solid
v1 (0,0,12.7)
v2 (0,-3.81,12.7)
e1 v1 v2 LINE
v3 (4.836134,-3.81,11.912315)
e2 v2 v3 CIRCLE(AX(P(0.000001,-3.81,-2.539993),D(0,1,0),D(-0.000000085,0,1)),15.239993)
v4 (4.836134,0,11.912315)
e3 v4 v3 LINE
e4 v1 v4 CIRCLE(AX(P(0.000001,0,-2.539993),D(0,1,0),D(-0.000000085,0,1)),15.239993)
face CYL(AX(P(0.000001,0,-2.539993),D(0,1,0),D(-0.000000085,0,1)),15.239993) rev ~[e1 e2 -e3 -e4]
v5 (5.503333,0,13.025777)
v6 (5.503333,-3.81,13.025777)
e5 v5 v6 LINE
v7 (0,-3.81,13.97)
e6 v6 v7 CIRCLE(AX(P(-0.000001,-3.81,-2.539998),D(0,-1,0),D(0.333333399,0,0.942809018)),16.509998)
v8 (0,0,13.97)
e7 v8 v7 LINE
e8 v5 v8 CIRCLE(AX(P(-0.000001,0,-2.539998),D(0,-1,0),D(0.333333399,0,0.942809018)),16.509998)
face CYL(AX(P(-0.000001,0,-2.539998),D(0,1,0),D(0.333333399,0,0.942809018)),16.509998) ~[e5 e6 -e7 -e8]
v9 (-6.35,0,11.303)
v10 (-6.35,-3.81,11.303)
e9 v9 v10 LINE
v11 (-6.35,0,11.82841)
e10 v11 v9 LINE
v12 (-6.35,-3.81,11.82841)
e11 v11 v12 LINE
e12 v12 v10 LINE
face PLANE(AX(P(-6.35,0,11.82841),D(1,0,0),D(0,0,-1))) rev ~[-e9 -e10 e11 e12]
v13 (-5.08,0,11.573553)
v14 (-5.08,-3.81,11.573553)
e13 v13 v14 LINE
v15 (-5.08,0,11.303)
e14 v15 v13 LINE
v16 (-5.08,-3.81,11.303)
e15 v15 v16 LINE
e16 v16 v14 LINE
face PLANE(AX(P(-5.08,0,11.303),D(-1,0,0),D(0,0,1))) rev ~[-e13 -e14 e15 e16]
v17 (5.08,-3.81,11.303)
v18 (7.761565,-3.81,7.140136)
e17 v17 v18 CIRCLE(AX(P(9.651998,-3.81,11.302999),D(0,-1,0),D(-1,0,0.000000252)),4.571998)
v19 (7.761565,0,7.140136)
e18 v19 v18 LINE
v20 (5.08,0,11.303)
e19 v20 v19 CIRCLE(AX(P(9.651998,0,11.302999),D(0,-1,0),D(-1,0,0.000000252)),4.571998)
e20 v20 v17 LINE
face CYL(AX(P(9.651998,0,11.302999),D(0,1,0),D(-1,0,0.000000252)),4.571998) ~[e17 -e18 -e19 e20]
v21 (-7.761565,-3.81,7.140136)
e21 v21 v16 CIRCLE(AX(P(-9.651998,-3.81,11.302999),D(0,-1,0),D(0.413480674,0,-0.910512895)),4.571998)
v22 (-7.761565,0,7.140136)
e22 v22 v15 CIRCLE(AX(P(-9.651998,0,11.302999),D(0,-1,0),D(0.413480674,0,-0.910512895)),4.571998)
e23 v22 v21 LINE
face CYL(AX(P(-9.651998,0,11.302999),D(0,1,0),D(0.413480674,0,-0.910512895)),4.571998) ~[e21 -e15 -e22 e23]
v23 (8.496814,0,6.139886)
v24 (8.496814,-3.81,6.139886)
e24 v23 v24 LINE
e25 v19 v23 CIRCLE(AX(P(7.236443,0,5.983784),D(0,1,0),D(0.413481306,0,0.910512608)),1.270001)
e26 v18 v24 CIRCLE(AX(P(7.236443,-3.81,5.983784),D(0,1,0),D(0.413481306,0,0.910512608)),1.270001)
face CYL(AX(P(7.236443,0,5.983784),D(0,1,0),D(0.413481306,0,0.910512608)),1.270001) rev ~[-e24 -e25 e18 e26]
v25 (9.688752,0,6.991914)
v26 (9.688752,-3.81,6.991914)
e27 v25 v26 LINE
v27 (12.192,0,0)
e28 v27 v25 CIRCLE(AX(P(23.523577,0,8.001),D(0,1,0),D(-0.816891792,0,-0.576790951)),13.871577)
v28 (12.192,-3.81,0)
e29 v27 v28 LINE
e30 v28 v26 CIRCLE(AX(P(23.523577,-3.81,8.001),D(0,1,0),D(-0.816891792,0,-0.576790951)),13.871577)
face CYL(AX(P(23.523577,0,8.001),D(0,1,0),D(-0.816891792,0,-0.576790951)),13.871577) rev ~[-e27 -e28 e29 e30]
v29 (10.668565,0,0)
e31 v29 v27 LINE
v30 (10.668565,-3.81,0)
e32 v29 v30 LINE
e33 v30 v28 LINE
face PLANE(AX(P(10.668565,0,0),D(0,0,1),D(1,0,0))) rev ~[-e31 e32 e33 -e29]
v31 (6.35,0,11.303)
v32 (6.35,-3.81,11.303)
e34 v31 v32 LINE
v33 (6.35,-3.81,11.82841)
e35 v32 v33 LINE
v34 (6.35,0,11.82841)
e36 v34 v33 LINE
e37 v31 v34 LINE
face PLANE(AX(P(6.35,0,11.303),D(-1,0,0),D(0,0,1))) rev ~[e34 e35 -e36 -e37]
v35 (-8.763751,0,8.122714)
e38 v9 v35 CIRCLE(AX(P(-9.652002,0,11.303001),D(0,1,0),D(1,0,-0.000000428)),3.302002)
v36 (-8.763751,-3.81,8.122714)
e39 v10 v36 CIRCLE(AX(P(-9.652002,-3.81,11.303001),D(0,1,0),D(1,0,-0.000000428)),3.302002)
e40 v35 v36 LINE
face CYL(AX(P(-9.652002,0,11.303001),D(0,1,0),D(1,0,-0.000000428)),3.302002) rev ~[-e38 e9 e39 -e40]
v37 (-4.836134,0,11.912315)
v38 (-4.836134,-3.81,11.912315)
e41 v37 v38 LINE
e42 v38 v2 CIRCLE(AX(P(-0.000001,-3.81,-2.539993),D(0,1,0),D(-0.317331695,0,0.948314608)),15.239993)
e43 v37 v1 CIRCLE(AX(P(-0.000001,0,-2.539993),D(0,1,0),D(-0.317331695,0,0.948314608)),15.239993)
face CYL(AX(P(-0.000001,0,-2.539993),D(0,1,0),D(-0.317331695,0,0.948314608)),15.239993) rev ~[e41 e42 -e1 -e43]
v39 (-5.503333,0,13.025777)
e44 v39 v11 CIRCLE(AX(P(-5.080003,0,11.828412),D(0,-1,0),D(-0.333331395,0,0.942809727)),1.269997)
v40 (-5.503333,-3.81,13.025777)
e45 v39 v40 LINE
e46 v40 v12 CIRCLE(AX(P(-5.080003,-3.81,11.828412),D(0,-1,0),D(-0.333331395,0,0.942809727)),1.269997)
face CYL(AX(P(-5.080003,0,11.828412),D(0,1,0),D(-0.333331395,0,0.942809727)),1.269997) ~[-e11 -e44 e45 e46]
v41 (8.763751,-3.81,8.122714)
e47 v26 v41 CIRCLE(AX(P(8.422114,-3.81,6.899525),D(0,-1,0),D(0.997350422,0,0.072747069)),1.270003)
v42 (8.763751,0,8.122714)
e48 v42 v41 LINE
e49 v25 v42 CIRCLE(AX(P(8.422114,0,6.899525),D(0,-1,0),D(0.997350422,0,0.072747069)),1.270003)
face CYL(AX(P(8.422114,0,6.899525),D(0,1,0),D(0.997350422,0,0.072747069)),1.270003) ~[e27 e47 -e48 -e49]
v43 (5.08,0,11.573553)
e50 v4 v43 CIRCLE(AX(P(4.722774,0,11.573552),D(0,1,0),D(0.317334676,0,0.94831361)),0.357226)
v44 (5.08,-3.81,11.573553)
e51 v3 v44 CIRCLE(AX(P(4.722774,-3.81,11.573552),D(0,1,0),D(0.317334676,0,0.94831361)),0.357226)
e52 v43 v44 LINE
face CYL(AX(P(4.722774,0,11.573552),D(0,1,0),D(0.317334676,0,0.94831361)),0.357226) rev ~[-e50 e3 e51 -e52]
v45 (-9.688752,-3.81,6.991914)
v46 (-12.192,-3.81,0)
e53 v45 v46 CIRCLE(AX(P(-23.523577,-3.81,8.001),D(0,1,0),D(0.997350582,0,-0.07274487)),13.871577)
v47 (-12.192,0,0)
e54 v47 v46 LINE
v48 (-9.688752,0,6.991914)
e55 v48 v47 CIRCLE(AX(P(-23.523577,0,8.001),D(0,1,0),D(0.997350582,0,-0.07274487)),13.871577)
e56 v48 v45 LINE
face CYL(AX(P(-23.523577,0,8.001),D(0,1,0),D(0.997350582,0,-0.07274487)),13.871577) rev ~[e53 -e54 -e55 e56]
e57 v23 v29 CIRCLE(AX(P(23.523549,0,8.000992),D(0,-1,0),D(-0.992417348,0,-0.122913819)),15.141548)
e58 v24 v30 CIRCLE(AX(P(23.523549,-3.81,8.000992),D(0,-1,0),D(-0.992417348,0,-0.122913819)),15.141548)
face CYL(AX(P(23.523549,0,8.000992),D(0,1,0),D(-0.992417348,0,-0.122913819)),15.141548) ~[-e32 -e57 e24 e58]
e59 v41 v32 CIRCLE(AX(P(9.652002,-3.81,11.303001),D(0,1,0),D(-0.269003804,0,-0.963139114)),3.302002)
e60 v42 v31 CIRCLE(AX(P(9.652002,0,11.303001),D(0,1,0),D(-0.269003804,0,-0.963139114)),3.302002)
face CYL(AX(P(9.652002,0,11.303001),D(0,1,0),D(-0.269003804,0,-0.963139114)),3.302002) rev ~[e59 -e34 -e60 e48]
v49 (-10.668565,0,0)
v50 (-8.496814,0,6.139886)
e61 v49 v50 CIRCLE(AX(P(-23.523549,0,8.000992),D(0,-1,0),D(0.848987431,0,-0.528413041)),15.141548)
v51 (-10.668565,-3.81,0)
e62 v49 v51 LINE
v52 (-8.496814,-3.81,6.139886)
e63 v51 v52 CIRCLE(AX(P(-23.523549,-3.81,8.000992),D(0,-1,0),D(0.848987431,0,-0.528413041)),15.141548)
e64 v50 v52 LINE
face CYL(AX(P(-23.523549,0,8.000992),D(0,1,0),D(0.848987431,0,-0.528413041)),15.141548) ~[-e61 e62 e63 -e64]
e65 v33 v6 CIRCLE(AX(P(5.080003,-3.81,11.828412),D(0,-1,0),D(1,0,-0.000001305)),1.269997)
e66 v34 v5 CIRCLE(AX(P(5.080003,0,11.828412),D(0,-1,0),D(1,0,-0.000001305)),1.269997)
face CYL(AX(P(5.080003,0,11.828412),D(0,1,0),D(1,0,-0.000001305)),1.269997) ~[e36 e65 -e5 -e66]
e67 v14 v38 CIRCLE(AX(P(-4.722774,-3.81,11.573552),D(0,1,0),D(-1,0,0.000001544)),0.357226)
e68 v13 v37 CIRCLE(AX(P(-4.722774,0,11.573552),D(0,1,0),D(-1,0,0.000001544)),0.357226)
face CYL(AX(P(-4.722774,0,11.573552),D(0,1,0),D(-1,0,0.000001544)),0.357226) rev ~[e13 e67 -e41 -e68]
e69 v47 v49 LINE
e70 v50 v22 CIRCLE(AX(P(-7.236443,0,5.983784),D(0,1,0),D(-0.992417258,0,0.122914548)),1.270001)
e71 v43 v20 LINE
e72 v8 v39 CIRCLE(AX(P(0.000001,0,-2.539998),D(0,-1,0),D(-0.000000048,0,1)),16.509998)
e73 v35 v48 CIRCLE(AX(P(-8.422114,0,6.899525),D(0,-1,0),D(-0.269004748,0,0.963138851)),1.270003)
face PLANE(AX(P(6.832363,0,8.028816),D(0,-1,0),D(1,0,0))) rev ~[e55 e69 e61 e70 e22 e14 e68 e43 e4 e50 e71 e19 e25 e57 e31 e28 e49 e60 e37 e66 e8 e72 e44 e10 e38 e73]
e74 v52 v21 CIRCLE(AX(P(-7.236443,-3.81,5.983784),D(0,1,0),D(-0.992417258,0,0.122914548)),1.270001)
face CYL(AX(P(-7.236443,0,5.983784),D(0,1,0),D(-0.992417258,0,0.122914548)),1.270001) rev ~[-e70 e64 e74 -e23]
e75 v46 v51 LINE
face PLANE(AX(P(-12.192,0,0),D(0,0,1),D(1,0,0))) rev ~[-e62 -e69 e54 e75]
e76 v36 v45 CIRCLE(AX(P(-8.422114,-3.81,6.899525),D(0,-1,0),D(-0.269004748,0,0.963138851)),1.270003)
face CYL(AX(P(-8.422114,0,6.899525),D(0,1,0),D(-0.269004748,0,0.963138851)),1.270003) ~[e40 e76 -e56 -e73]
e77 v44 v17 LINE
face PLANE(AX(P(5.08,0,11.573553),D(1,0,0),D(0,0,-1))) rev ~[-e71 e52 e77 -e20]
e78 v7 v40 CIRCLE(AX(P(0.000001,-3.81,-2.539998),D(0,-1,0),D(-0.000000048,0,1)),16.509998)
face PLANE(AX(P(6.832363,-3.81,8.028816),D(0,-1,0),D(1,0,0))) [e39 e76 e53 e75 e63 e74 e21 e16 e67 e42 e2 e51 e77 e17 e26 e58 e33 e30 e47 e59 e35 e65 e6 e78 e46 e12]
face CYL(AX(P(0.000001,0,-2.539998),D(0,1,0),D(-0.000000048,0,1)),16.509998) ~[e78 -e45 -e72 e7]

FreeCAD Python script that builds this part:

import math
import FreeCAD as App
import Part
import Sketcher

V = App.Vector
Q = App.Units.Quantity

doc = App.newDocument("Part")
body = doc.addObject("PartDesign::Body", "Body")

# Sketch on XZ plane
sketch1 = body.newObject("Sketcher::SketchObject", "Sketch")
sketch1.AttachmentSupport = (doc.getObject("XZ_Plane"), [""])
sketch1.MapMode = "FlatFace"
sketch1.addGeometry([
    Part.ArcOfCircle(Part.Circle(V(0.000001, -2.539993, 0), V(0, 0, 1), 15.239993), math.radians(71.498366), math.radians(90.000005)),  # 0
    Part.ArcOfCircle(Part.Circle(V(4.722774, 11.573552, 0), V(0, 0, 1), 0.357226), math.radians(0.000088), math.radians(71.498186)),  # 1
    Part.LineSegment(V(5.08, 11.573553, 0), V(5.08, 11.303, 0)),  # 2
    Part.ArcOfCircle(Part.Circle(V(9.651998, 11.302999, 0), V(0, 0, 1), 4.571998), math.radians(179.999986), math.radians(245.576326)),  # 3
    Part.ArcOfCircle(Part.Circle(V(7.236443, 5.983784, 0), V(0, 0, 1), 1.270001), math.radians(7.060339), math.radians(65.576287)),  # 4
    Part.ArcOfCircle(Part.Circle(V(23.523549, 8.000992, 0), V(0, 0, 1), 15.141548), math.radians(-172.939703), math.radians(-148.101707)),  # 5
    Part.LineSegment(V(10.668565, 0, 0), V(12.192, 0, 0)),  # 6
    Part.ArcOfCircle(Part.Circle(V(23.523577, 8.001, 0), V(0, 0, 1), 13.871577), math.radians(-175.828341), math.radians(-144.77485)),  # 7
    Part.ArcOfCircle(Part.Circle(V(8.422114, 6.899525, 0), V(0, 0, 1), 1.270003), math.radians(4.171785), math.radians(74.394948)),  # 8
    Part.ArcOfCircle(Part.Circle(V(9.652002, 11.303001, 0), V(0, 0, 1), 3.302002), math.radians(-179.999975), math.radians(-105.604996)),  # 9
    Part.LineSegment(V(6.35, 11.303, 0), V(6.35, 11.82841, 0)),  # 10
    Part.ArcOfCircle(Part.Circle(V(5.080003, 11.828412, 0), V(0, 0, 1), 1.269997), math.radians(-0.000075), math.radians(70.528897)),  # 11
    Part.ArcOfCircle(Part.Circle(V(-0.000001, -2.539998, 0), V(0, 0, 1), 16.509998), math.radians(70.528775), math.radians(89.999997)),  # 12
    Part.ArcOfCircle(Part.Circle(V(0.000001, -2.539998, 0), V(0, 0, 1), 16.509998), math.radians(90.000003), math.radians(109.471225)),  # 13
    Part.ArcOfCircle(Part.Circle(V(-5.080003, 11.828412, 0), V(0, 0, 1), 1.269997), math.radians(109.471103), math.radians(180.000075)),  # 14
    Part.LineSegment(V(-6.35, 11.82841, 0), V(-6.35, 11.303, 0)),  # 15
    Part.ArcOfCircle(Part.Circle(V(-9.652002, 11.303001, 0), V(0, 0, 1), 3.302002), math.radians(-74.395004), math.radians(-0.000025)),  # 16
    Part.ArcOfCircle(Part.Circle(V(-8.422114, 6.899525, 0), V(0, 0, 1), 1.270003), math.radians(105.605052), math.radians(175.828215)),  # 17
    Part.ArcOfCircle(Part.Circle(V(-23.523577, 8.001, 0), V(0, 0, 1), 13.871577), math.radians(-35.22515), math.radians(-4.171659)),  # 18
    Part.LineSegment(V(-12.192, 0, 0), V(-10.668565, 0, 0)),  # 19
    Part.ArcOfCircle(Part.Circle(V(-23.523549, 8.000992, 0), V(0, 0, 1), 15.141548), math.radians(-31.898293), math.radians(-7.060297)),  # 20
    Part.ArcOfCircle(Part.Circle(V(-7.236443, 5.983784, 0), V(0, 0, 1), 1.270001), math.radians(114.423713), math.radians(172.939661)),  # 21
    Part.ArcOfCircle(Part.Circle(V(-9.651998, 11.302999, 0), V(0, 0, 1), 4.571998), math.radians(-65.576326), math.radians(0.000014)),  # 22
    Part.LineSegment(V(-5.08, 11.303, 0), V(-5.08, 11.573553, 0)),  # 23
    Part.ArcOfCircle(Part.Circle(V(-4.722774, 11.573552, 0), V(0, 0, 1), 0.357226), math.radians(108.501814), math.radians(179.999912)),  # 24
    Part.ArcOfCircle(Part.Circle(V(-0.000001, -2.539993, 0), V(0, 0, 1), 15.239993), math.radians(89.999995), math.radians(108.501634)),  # 25
], False)
sketch1.addConstraint([
    Sketcher.Constraint("Coincident", 0, 1, 1, 2),
    Sketcher.Constraint("Coincident", 1, 1, 2, 1),
    Sketcher.Constraint("Coincident", 2, 2, 3, 1),
    Sketcher.Constraint("Coincident", 3, 2, 4, 2),
    Sketcher.Constraint("Coincident", 4, 1, 5, 1),
    Sketcher.Constraint("Coincident", 5, 2, 6, 1),
    Sketcher.Constraint("Coincident", 6, 2, 7, 2),
    Sketcher.Constraint("Coincident", 7, 1, 8, 1),
    Sketcher.Constraint("Coincident", 8, 2, 9, 2),
    Sketcher.Constraint("Coincident", 9, 1, 10, 1),
    Sketcher.Constraint("Coincident", 10, 2, 11, 1),
    Sketcher.Constraint("Coincident", 11, 2, 12, 1),
    Sketcher.Constraint("Coincident", 12, 2, 13, 1),
    Sketcher.Constraint("Coincident", 13, 2, 14, 1),
    Sketcher.Constraint("Coincident", 14, 2, 15, 1),
    Sketcher.Constraint("Coincident", 15, 2, 16, 2),
    Sketcher.Constraint("Coincident", 16, 1, 17, 1),
    Sketcher.Constraint("Coincident", 17, 2, 18, 2),
    Sketcher.Constraint("Coincident", 18, 1, 19, 1),
    Sketcher.Constraint("Coincident", 19, 2, 20, 1),
    Sketcher.Constraint("Coincident", 20, 2, 21, 2),
    Sketcher.Constraint("Coincident", 21, 1, 22, 1),
    Sketcher.Constraint("Coincident", 22, 2, 23, 1),
    Sketcher.Constraint("Coincident", 23, 2, 24, 2),
    Sketcher.Constraint("Coincident", 24, 1, 25, 2),
    Sketcher.Constraint("Coincident", 25, 1, 0, 2),
    Sketcher.Constraint("Vertical", 2),
    Sketcher.Constraint("Horizontal", 6),
    Sketcher.Constraint("Vertical", 10),
    Sketcher.Constraint("Vertical", 15),
    Sketcher.Constraint("Horizontal", 19),
    Sketcher.Constraint("Vertical", 23),
    Sketcher.Constraint("Coincident", 9, 3, 3, 3),
    Sketcher.Constraint("Coincident", 12, 3, 0, 3),
    Sketcher.Constraint("Coincident", 13, 3, 0, 3),
    Sketcher.Constraint("Coincident", 22, 3, 16, 3),
    Sketcher.Constraint("Coincident", 25, 3, 0, 3),
    Sketcher.Constraint("PointOnObject", 0, 3, -2),
    Sketcher.Constraint("PointOnObject", 5, 2, -1),
    Sketcher.Constraint("PointOnObject", 12, 2, -2),
    Sketcher.Constraint("PointOnObject", 18, 1, -1),
    Sketcher.Constraint("PointOnObject", 25, 1, -2),
    Sketcher.Constraint("Radius", 3, Q("0.1799999 in")),
    Sketcher.Constraint("Radius", 4, Q("0.05 in")),
    Sketcher.Constraint("Radius", 8, Q("0.0500001 in")),
    Sketcher.Constraint("Radius", 9, Q("0.1300001 in")),
    Sketcher.Constraint("Radius", 11, Q("0.0499999 in")),
    Sketcher.Constraint("Radius", 12, Q("0.6499999 in")),
    Sketcher.Constraint("Radius", 14, Q("0.0499999 in")),
    Sketcher.Constraint("Radius", 16, Q("0.1300001 in")),
    Sketcher.Constraint("Radius", 17, Q("0.0500001 in")),
    Sketcher.Constraint("Radius", 21, Q("0.05 in")),
    Sketcher.Constraint("Radius", 22, Q("0.1799999 in")),
    Sketcher.Constraint("DistanceX", -1, 1, 11, 3, Q("0.2000001 in")),
    Sketcher.Constraint("DistanceY", 12, 3, -1, 1, Q("0.0999999 in")),
    Sketcher.Constraint("DistanceX", 14, 3, -1, 1, Q("0.2000001 in")),
    Sketcher.Constraint("DistanceY", -1, 1, 25, 1, Q("0.5 in")),
    Sketcher.Constraint("DistanceX", 18, 1, 22, 3, Q("0.1000001 in")),
    Sketcher.Constraint("DistanceX", -1, 1, 6, 2, Q("0.48 in")),
    Sketcher.Constraint("DistanceY", 7, 3, 3, 3, Q("0.13 in")),
    Sketcher.Constraint("DistanceY", 18, 3, 16, 3, Q("0.1300001 in")),
    Sketcher.Constraint("DistanceY", -1, 1, 3, 3, Q("0.445 in")),
    Sketcher.Constraint("DistanceY", -1, 1, 16, 3, Q("0.4450001 in")),
    Sketcher.Constraint("DistanceY", -1, 1, 2, 2, Q("0.445 in")),
    Sketcher.Constraint("DistanceY", -1, 1, 9, 1, Q("0.445 in")),
    Sketcher.Constraint("DistanceY", -1, 1, 15, 2, Q("0.445 in")),
    Sketcher.Constraint("DistanceY", -1, 1, 22, 2, Q("0.445 in")),
    Sketcher.Constraint("Radius", 5, 15.141548),
    Sketcher.Constraint("Radius", 20, 15.141548),
    Sketcher.Constraint("Radius", 1, 0.357226),
    Sketcher.Constraint("Radius", 7, 13.871577),
    Sketcher.Constraint("Radius", 18, 13.871577),
    Sketcher.Constraint("Radius", 24, 0.357226),
    Sketcher.Constraint("DistanceY", 10, 1, 10, 2, 0.52541),
    Sketcher.Constraint("DistanceY", 15, 2, 15, 1, 0.52541),
    Sketcher.Constraint("DistanceX", 8, 3, 4, 1, 0.0747),
    Sketcher.Constraint("DistanceY", 4, 3, 4, 1, 0.156102),
    Sketcher.Constraint("DistanceX", 3, 2, 5, 2, 2.907),
    Sketcher.Constraint("DistanceX", 8, 2, 7, 1, 0.925001),
    Sketcher.Constraint("DistanceY", 7, 1, 8, 2, 1.1308),
    Sketcher.Constraint("DistanceX", 0, 1, 11, 2, 0.667199),
    Sketcher.Constraint("DistanceX", 17, 2, 16, 1, 0.925001),
    Sketcher.Constraint("DistanceY", 17, 2, 16, 1, 1.1308),
    Sketcher.Constraint("DistanceX", 20, 2, 17, 3, 0.0747),
    Sketcher.Constraint("DistanceY", 21, 3, 20, 2, 0.156102),
    Sketcher.Constraint("DistanceX", 13, 2, 24, 1, 0.667199),
    Sketcher.Constraint("DistanceX", 6, 1, 6, 2, 1.523435),
    Sketcher.Constraint("DistanceX", 19, 1, 19, 2, 1.523435),
    Sketcher.Constraint("DistanceY", 2, 2, 2, 1, 0.270553),
    Sketcher.Constraint("DistanceY", 23, 1, 23, 2, 0.270553),
    Sketcher.Constraint("DistanceX", 0, 1, 11, 3, 0.243869),
    Sketcher.Constraint("DistanceX", 13, 2, 14, 3, 0.42333),
    Sketcher.Constraint("DistanceX", 17, 3, 21, 1, 0.660549),
])
pad1 = body.newObject("PartDesign::Pad", "Pad")
pad1.Profile = sketch1
pad1.Length = Q("0.15 in")

doc.recompute()
